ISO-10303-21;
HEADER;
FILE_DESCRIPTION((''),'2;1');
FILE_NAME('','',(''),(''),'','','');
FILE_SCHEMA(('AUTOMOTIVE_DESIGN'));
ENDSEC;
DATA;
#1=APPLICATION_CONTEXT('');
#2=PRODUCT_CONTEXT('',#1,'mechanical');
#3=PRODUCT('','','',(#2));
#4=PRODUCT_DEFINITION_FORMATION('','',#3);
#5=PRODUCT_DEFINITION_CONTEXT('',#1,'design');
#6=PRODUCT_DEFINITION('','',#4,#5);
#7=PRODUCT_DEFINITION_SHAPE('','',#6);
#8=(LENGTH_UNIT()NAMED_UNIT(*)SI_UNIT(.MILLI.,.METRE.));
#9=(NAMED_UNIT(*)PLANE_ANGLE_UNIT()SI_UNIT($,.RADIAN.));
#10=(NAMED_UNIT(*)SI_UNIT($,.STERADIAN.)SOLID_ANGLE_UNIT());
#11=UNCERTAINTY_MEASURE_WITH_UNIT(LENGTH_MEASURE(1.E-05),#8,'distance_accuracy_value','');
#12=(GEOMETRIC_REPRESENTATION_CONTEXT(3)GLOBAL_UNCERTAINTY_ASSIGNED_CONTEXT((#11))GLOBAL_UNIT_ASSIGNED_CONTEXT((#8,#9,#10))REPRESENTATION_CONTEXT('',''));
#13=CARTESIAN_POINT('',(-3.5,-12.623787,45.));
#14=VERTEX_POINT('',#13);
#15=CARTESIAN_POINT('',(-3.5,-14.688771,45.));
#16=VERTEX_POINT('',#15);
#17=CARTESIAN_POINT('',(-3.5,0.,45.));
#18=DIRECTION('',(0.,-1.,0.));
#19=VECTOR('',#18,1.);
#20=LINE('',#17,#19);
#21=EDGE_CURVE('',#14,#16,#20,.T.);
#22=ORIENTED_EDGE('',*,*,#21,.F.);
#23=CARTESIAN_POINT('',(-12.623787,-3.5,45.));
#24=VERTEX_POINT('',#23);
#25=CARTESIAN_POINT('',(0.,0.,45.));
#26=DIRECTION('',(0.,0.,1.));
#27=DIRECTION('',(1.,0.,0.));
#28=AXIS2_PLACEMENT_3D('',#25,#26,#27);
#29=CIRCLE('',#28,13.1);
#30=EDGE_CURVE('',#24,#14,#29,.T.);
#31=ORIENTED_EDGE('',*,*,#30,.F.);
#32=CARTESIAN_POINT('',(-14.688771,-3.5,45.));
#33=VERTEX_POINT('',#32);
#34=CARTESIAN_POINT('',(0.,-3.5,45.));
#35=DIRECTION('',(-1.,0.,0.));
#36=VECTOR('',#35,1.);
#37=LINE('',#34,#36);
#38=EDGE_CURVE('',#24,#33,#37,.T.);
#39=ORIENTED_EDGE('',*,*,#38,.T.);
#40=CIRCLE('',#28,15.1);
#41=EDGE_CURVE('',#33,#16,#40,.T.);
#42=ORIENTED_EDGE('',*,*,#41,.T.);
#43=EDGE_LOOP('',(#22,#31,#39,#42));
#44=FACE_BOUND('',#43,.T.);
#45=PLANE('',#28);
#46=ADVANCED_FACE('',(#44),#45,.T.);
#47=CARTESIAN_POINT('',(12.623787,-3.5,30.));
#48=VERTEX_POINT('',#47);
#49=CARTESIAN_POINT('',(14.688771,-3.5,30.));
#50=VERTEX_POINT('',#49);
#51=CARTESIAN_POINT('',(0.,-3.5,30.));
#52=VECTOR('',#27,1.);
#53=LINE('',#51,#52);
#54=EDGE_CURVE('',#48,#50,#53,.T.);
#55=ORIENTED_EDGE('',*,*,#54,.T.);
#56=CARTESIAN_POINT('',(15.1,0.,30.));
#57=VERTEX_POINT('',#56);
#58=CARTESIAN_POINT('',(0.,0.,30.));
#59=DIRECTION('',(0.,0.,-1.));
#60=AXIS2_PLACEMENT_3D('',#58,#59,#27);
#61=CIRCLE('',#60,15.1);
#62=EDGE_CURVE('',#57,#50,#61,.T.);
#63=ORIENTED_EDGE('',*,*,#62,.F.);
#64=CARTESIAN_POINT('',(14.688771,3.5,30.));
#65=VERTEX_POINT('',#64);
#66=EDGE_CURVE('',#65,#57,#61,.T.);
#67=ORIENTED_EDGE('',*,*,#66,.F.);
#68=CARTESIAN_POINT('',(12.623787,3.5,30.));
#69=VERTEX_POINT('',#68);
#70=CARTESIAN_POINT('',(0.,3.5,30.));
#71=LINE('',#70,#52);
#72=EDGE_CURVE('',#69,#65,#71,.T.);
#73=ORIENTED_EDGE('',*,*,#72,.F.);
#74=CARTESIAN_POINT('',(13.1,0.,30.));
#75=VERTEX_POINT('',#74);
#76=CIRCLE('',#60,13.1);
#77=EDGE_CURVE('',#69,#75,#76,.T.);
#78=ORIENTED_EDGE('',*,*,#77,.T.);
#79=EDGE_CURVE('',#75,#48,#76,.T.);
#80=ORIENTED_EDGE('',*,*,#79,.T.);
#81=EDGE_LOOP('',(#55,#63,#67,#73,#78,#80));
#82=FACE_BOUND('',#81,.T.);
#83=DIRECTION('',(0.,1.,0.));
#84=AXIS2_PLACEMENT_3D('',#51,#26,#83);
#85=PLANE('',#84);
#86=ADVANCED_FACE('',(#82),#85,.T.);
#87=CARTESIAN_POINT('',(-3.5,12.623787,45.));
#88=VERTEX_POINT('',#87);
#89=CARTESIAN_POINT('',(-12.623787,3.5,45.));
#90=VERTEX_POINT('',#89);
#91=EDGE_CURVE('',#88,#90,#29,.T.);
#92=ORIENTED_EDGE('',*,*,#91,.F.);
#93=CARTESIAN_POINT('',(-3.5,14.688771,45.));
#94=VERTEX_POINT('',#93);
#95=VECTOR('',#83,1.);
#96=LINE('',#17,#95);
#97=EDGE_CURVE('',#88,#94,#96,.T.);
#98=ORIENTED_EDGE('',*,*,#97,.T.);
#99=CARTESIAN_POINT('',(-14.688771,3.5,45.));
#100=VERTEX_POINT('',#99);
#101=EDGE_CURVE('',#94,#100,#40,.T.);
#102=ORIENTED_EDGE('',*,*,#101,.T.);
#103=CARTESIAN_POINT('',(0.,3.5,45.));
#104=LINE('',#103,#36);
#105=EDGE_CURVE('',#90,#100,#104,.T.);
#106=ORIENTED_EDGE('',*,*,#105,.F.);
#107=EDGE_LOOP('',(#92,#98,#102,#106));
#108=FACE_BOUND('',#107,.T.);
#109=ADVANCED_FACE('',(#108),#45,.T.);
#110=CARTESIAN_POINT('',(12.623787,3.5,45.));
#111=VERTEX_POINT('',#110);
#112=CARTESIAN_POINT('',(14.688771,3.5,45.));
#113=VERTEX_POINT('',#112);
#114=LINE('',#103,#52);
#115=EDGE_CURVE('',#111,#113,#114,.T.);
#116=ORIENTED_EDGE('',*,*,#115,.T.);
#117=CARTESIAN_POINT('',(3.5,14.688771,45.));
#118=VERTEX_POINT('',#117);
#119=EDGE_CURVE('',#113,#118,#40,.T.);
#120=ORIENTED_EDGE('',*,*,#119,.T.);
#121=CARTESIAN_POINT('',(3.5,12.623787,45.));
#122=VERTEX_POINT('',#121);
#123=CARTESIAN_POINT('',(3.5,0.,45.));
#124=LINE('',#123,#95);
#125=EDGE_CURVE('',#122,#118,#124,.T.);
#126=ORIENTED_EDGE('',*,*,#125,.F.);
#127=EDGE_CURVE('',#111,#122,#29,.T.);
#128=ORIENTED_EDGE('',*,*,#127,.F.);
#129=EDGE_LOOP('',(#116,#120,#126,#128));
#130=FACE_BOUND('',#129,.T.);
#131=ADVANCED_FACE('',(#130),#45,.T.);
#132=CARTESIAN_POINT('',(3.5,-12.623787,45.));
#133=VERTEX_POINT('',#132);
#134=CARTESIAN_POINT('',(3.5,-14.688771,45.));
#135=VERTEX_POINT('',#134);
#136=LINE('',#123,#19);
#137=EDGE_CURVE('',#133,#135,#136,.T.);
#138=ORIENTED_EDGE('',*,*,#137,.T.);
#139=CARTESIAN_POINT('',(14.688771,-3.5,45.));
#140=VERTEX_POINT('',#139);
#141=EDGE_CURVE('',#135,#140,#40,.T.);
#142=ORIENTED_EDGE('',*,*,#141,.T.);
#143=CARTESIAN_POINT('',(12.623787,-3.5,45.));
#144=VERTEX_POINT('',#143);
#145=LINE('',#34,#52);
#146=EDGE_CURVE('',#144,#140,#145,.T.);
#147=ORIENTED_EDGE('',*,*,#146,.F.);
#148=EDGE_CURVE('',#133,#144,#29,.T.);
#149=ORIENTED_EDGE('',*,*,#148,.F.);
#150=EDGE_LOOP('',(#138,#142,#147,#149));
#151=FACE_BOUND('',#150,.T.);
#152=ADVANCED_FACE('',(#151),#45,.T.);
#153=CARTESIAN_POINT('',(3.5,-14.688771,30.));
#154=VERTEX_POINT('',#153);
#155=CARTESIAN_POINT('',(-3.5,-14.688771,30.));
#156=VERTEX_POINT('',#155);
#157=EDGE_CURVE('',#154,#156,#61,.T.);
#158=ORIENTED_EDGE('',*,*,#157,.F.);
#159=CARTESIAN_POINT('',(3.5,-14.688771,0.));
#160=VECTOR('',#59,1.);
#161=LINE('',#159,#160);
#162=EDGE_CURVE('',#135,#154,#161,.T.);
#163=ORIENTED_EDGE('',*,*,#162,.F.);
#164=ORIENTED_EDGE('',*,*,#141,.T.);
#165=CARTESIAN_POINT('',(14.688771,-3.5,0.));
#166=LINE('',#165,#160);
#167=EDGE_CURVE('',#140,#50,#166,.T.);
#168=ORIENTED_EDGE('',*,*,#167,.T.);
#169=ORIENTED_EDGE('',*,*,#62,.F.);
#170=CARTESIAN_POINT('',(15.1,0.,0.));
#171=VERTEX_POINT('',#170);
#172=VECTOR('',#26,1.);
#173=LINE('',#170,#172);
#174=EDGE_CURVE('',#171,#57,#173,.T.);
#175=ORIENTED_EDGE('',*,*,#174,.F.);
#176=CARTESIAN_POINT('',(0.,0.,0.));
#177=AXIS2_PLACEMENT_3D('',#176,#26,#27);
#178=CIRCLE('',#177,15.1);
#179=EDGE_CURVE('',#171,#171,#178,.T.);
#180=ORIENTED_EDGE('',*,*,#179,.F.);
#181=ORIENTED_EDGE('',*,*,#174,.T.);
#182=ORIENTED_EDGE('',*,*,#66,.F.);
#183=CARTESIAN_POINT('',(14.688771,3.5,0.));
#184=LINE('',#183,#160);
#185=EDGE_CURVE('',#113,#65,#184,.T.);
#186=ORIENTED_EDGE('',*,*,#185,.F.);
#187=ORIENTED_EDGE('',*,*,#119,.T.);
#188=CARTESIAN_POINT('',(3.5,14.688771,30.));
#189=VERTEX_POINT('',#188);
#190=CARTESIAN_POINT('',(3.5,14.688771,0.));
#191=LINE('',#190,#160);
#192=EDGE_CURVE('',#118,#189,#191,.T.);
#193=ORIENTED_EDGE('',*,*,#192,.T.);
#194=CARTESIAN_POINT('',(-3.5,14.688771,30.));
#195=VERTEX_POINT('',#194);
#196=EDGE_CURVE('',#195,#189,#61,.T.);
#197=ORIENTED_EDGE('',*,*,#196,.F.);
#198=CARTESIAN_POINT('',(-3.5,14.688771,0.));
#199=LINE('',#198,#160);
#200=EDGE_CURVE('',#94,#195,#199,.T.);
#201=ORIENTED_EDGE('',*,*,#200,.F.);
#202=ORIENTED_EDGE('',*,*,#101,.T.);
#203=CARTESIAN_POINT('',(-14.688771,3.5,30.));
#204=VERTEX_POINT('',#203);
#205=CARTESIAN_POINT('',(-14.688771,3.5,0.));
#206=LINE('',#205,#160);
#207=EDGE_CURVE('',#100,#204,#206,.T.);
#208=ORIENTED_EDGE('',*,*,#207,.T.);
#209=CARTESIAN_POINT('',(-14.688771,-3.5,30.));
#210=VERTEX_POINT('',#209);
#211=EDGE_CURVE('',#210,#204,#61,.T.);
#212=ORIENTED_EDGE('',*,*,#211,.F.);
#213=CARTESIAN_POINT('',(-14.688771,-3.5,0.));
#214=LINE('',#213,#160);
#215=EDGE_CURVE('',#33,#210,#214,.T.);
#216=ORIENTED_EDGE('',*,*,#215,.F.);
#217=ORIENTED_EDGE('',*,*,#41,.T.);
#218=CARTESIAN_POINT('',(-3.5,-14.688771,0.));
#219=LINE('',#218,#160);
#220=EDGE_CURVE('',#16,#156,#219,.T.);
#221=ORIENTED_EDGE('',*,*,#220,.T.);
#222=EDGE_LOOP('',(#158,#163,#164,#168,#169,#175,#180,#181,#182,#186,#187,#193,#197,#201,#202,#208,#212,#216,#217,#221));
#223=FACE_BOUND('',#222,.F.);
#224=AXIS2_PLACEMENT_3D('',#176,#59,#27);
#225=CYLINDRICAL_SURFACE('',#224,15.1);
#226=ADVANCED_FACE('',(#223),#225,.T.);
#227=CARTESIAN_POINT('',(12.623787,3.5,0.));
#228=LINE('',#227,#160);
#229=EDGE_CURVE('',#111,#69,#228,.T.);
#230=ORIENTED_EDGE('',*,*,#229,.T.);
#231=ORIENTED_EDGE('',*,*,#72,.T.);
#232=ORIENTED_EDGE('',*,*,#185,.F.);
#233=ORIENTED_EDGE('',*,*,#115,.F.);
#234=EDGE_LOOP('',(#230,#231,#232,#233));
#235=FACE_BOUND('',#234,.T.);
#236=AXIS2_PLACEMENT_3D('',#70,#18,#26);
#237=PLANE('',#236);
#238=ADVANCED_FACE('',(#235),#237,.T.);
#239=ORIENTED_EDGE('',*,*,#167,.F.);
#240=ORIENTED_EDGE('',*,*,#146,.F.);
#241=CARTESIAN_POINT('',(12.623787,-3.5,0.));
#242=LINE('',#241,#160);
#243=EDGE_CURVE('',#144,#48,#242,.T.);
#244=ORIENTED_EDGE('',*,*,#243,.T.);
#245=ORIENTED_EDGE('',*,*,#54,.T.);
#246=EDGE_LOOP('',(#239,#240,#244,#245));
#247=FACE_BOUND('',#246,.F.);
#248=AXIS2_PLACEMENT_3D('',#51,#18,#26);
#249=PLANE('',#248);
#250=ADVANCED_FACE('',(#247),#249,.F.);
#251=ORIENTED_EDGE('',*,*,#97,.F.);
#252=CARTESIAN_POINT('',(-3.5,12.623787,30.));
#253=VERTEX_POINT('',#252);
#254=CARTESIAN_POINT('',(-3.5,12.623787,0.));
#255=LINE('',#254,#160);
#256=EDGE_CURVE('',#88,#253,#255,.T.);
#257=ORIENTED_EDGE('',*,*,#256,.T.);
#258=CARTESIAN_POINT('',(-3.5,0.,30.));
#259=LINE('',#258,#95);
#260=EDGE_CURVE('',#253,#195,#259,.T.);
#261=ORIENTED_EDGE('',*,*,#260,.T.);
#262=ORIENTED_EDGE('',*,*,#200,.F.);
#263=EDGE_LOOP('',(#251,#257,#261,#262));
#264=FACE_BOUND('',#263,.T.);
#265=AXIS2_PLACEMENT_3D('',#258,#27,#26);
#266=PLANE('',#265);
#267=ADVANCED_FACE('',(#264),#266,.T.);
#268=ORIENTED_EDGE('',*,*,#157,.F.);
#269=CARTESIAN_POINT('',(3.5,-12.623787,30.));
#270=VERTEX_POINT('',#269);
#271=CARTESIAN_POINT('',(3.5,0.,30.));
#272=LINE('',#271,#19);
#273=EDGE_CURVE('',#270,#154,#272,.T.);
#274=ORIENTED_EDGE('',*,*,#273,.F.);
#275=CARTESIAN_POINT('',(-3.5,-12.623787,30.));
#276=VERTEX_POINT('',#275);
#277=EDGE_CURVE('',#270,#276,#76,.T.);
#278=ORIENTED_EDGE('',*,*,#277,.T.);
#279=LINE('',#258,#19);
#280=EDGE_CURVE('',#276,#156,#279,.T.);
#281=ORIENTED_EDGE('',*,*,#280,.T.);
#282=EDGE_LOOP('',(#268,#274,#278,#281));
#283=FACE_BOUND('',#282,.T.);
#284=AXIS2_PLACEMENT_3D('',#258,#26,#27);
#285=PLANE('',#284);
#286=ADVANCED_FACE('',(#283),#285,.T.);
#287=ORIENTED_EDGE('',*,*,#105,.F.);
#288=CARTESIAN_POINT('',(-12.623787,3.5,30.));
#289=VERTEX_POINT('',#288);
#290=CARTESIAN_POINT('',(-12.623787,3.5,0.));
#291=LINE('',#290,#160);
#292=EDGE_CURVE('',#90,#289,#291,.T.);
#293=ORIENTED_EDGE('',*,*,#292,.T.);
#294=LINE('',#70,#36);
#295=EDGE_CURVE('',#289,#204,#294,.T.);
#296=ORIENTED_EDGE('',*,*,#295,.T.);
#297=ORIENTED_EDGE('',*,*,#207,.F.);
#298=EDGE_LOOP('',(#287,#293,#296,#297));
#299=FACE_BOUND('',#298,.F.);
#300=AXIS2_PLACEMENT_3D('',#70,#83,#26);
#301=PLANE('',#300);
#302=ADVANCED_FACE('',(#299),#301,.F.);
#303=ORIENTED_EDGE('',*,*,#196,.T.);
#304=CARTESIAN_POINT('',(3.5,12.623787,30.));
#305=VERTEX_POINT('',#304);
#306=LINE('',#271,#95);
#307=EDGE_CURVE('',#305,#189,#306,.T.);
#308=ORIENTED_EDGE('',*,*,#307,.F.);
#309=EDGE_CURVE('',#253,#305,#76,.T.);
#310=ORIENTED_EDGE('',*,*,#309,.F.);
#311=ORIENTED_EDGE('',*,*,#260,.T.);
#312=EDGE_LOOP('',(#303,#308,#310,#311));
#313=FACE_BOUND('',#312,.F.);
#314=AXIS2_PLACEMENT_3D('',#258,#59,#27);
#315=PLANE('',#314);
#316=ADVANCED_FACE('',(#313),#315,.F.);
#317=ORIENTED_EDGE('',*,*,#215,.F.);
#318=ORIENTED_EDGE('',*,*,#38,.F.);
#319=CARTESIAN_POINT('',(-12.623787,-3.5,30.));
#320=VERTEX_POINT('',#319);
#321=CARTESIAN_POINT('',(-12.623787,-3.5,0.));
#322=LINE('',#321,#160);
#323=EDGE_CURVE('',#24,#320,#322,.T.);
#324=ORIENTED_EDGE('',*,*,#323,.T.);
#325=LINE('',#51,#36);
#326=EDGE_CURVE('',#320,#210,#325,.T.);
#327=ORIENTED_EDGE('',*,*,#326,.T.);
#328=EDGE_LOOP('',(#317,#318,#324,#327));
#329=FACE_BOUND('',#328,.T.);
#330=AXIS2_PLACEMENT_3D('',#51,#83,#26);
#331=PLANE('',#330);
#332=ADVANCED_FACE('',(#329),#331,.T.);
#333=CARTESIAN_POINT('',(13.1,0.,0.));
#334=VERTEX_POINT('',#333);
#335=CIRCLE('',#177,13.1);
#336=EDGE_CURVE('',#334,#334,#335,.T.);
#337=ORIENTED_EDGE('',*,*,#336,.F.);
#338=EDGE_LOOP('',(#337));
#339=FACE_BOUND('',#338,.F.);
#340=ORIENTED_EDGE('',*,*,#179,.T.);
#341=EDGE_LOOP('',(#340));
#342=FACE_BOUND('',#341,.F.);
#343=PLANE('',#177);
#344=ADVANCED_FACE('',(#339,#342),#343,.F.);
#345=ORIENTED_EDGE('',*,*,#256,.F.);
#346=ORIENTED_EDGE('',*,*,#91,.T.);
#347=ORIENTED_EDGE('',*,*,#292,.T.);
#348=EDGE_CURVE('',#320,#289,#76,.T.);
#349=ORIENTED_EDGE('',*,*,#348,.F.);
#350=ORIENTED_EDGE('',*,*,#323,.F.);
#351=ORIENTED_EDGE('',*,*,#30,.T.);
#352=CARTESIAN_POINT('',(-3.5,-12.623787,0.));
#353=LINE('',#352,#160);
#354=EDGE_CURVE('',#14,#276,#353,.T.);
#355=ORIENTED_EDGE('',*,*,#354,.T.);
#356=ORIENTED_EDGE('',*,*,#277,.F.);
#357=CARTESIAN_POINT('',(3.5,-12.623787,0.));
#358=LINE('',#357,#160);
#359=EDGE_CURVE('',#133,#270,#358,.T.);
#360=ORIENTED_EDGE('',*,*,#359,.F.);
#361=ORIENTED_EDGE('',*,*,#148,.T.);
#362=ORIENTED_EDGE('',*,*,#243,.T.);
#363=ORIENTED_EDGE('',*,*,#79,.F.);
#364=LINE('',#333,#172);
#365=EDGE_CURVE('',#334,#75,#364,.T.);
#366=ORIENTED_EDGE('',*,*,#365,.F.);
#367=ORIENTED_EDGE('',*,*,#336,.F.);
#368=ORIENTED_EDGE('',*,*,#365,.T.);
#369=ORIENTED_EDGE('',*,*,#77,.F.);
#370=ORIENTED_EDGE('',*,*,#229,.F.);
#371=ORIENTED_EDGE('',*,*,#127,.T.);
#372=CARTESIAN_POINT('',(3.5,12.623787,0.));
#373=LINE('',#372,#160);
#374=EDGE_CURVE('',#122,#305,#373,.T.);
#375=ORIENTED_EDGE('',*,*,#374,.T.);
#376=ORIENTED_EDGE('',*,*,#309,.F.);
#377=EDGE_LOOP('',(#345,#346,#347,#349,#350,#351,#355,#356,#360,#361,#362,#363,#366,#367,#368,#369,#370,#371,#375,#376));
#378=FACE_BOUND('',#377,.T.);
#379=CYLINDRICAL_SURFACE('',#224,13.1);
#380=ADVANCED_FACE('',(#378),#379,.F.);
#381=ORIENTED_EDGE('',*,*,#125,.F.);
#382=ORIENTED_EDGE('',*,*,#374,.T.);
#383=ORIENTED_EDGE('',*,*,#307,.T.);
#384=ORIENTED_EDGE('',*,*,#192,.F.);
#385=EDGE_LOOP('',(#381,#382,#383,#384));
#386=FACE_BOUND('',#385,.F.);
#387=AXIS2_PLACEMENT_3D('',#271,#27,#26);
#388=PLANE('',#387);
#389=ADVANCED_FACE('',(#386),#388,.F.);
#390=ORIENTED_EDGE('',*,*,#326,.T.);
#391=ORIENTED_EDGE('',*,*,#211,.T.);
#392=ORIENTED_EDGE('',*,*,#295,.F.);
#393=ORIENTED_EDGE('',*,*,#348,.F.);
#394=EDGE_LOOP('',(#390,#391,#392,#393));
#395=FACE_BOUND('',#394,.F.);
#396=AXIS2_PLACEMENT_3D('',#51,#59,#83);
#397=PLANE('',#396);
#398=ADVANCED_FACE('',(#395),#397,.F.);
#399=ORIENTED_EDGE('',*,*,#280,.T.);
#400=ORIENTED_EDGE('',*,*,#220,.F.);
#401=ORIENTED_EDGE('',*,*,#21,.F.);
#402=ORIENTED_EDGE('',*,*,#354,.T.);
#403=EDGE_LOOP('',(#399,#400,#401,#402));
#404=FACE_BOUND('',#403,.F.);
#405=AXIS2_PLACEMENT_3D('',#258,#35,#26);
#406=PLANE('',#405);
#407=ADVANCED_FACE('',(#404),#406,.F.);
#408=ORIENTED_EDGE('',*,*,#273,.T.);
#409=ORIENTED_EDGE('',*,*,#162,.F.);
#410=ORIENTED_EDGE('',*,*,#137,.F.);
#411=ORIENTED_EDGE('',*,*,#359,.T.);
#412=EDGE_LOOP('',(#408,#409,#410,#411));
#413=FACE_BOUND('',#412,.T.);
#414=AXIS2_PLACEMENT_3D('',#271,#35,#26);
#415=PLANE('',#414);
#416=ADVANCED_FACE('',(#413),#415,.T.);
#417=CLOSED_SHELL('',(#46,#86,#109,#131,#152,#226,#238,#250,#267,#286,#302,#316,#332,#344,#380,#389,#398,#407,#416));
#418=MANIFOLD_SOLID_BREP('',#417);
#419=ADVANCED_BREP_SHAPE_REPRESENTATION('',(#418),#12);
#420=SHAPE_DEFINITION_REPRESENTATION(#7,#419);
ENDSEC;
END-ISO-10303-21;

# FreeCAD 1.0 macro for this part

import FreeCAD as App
import Part
import Sketcher
from FreeCAD import Vector
Q = App.Units.Quantity

doc = App.newDocument("Part")
body = doc.addObject("PartDesign::Body", "Body")

# Sketch on XY plane
sketch1 = body.newObject("Sketcher::SketchObject", "Sketch")
sketch1.AttachmentSupport = (doc.getObject("XY_Plane"), [""])
sketch1.MapMode = "FlatFace"
sketch1.addGeometry(Part.Circle(Vector(0, 0, 0), Vector(0, 0, 1), 15.1), False)
sketch1.addGeometry(Part.Circle(Vector(0, 0, 0), Vector(0, 0, 1), 13.1), False)
sketch1.addConstraint(Sketcher.Constraint("Coincident", 0, 3, -1, 1))
sketch1.addConstraint(Sketcher.Constraint("Coincident", 1, 3, -1, 1))
sketch1.addConstraint(Sketcher.Constraint("Diameter", 0, Q("30.2 mm")))
sketch1.addConstraint(Sketcher.Constraint("Diameter", 1, Q("26.2 mm")))
pad1 = body.newObject("PartDesign::Pad", "Pad")
pad1.Profile = sketch1
pad1.Length = 45

# Sketch on XZ plane
sketch2 = body.newObject("Sketcher::SketchObject", "Sketch001")
sketch2.AttachmentSupport = (doc.getObject("XZ_Plane"), [""])
sketch2.MapMode = "FlatFace"
sketch2.addGeometry(Part.LineSegment(Vector(-3.5, 45, 0), Vector(-3.5, 30, 0)), False)
sketch2.addGeometry(Part.LineSegment(Vector(-3.5, 30, 0), Vector(3.5, 30, 0)), False)
sketch2.addGeometry(Part.LineSegment(Vector(3.5, 30, 0), Vector(3.5, 45, 0)), False)
sketch2.addGeometry(Part.LineSegment(Vector(3.5, 45, 0), Vector(-3.5, 45, 0)), False)
sketch2.addConstraint(Sketcher.Constraint("Coincident", 0, 2, 1, 1))
sketch2.addConstraint(Sketcher.Constraint("Coincident", 1, 2, 2, 1))
sketch2.addConstraint(Sketcher.Constraint("Coincident", 2, 2, 3, 1))
sketch2.addConstraint(Sketcher.Constraint("Coincident", 3, 2, 0, 1))
sketch2.addConstraint(Sketcher.Constraint("Vertical", 0))
sketch2.addConstraint(Sketcher.Constraint("Horizontal", 1))
sketch2.addConstraint(Sketcher.Constraint("Vertical", 2))
sketch2.addConstraint(Sketcher.Constraint("Horizontal", 3))
sketch2.addConstraint(Sketcher.Constraint("DistanceX", 1, 1, 1, 2, Q("7 mm")))
sketch2.addConstraint(Sketcher.Constraint("DistanceY", 0, 2, 0, 1, Q("15 mm")))
sketch2.addConstraint(Sketcher.Constraint("DistanceY", -1, 1, 0, 2, Q("30 mm")))
sketch2.addConstraint(Sketcher.Constraint("DistanceX", 0, 2, -1, 1, Q("3.5 mm")))
pocket1 = body.newObject("PartDesign::Pocket", "Pocket")
pocket1.Profile = sketch2
pocket1.Length = 25

# Sketch on XZ plane
sketch3 = body.newObject("Sketcher::SketchObject", "Sketch002")
sketch3.AttachmentSupport = (doc.getObject("XZ_Plane"), [""])
sketch3.MapMode = "FlatFace"
sketch3.addGeometry(Part.LineSegment(Vector(-3.5, 45, 0), Vector(-3.5, 30, 0)), False)
sketch3.addGeometry(Part.LineSegment(Vector(-3.5, 30, 0), Vector(3.5, 30, 0)), False)
sketch3.addGeometry(Part.LineSegment(Vector(3.5, 30, 0), Vector(3.5, 45, 0)), False)
sketch3.addGeometry(Part.LineSegment(Vector(3.5, 45, 0), Vector(-3.5, 45, 0)), False)
sketch3.addConstraint(Sketcher.Constraint("Coincident", 0, 2, 1, 1))
sketch3.addConstraint(Sketcher.Constraint("Coincident", 1, 2, 2, 1))
sketch3.addConstraint(Sketcher.Constraint("Coincident", 2, 2, 3, 1))
sketch3.addConstraint(Sketcher.Constraint("Coincident", 3, 2, 0, 1))
sketch3.addConstraint(Sketcher.Constraint("Vertical", 0))
sketch3.addConstraint(Sketcher.Constraint("Horizontal", 1))
sketch3.addConstraint(Sketcher.Constraint("Vertical", 2))
sketch3.addConstraint(Sketcher.Constraint("Horizontal", 3))
sketch3.addConstraint(Sketcher.Constraint("DistanceX", 1, 1, 1, 2, Q("7 mm")))
sketch3.addConstraint(Sketcher.Constraint("DistanceY", 0, 2, 0, 1, Q("15 mm")))
sketch3.addConstraint(Sketcher.Constraint("DistanceY", -1, 1, 0, 2, Q("30 mm")))
sketch3.addConstraint(Sketcher.Constraint("DistanceX", 0, 2, -1, 1, Q("3.5 mm")))
pocket2 = body.newObject("PartDesign::Pocket", "Pocket001")
pocket2.Profile = sketch3
pocket2.Length = 25
pocket2.Reversed = True

# Sketch on YZ plane
sketch4 = body.newObject("Sketcher::SketchObject", "Sketch003")
sketch4.AttachmentSupport = (doc.getObject("YZ_Plane"), [""])
sketch4.MapMode = "FlatFace"
sketch4.addGeometry(Part.LineSegment(Vector(-3.5, 45, 0), Vector(-3.5, 30, 0)), False)
sketch4.addGeometry(Part.LineSegment(Vector(-3.5, 30, 0), Vector(3.5, 30, 0)), False)
sketch4.addGeometry(Part.LineSegment(Vector(3.5, 30, 0), Vector(3.5, 45, 0)), False)
sketch4.addGeometry(Part.LineSegment(Vector(3.5, 45, 0), Vector(-3.5, 45, 0)), False)
sketch4.addConstraint(Sketcher.Constraint("Coincident", 0, 2, 1, 1))
sketch4.addConstraint(Sketcher.Constraint("Coincident", 1, 2, 2, 1))
sketch4.addConstraint(Sketcher.Constraint("Coincident", 2, 2, 3, 1))
sketch4.addConstraint(Sketcher.Constraint("Coincident", 3, 2, 0, 1))
sketch4.addConstraint(Sketcher.Constraint("Vertical", 0))
sketch4.addConstraint(Sketcher.Constraint("Horizontal", 1))
sketch4.addConstraint(Sketcher.Constraint("Vertical", 2))
sketch4.addConstraint(Sketcher.Constraint("Horizontal", 3))
sketch4.addConstraint(Sketcher.Constraint("DistanceX", 1, 1, 1, 2, Q("7 mm")))
sketch4.addConstraint(Sketcher.Constraint("DistanceY", 0, 2, 0, 1, Q("15 mm")))
sketch4.addConstraint(Sketcher.Constraint("DistanceY", -1, 1, 0, 2, Q("30 mm")))
sketch4.addConstraint(Sketcher.Constraint("DistanceX", 0, 2, -1, 1, Q("3.5 mm")))
pocket3 = body.newObject("PartDesign::Pocket", "Pocket002")
pocket3.Profile = sketch4
pocket3.Length = 25

# Sketch on YZ plane
sketch5 = body.newObject("Sketcher::SketchObject", "Sketch004")
sketch5.AttachmentSupport = (doc.getObject("YZ_Plane"), [""])
sketch5.MapMode = "FlatFace"
sketch5.addGeometry(Part.LineSegment(Vector(-3.5, 45, 0), Vector(-3.5, 30, 0)), False)
sketch5.addGeometry(Part.LineSegment(Vector(-3.5, 30, 0), Vector(3.5, 30, 0)), False)
sketch5.addGeometry(Part.LineSegment(Vector(3.5, 30, 0), Vector(3.5, 45, 0)), False)
sketch5.addGeometry(Part.LineSegment(Vector(3.5, 45, 0), Vector(-3.5, 45, 0)), False)
sketch5.addConstraint(Sketcher.Constraint("Coincident", 0, 2, 1, 1))
sketch5.addConstraint(Sketcher.Constraint("Coincident", 1, 2, 2, 1))
sketch5.addConstraint(Sketcher.Constraint("Coincident", 2, 2, 3, 1))
sketch5.addConstraint(Sketcher.Constraint("Coincident", 3, 2, 0, 1))
sketch5.addConstraint(Sketcher.Constraint("Vertical", 0))
sketch5.addConstraint(Sketcher.Constraint("Horizontal", 1))
sketch5.addConstraint(Sketcher.Constraint("Vertical", 2))
sketch5.addConstraint(Sketcher.Constraint("Horizontal", 3))
sketch5.addConstraint(Sketcher.Constraint("DistanceX", 1, 1, 1, 2, Q("7 mm")))
sketch5.addConstraint(Sketcher.Constraint("DistanceY", 0, 2, 0, 1, Q("15 mm")))
sketch5.addConstraint(Sketcher.Constraint("DistanceY", -1, 1, 0, 2, Q("30 mm")))
sketch5.addConstraint(Sketcher.Constraint("DistanceX", 0, 2, -1, 1, Q("3.5 mm")))
pocket4 = body.newObject("PartDesign::Pocket", "Pocket003")
pocket4.Profile = sketch5
pocket4.Length = 25
pocket4.Reversed = True

doc.recompute()
